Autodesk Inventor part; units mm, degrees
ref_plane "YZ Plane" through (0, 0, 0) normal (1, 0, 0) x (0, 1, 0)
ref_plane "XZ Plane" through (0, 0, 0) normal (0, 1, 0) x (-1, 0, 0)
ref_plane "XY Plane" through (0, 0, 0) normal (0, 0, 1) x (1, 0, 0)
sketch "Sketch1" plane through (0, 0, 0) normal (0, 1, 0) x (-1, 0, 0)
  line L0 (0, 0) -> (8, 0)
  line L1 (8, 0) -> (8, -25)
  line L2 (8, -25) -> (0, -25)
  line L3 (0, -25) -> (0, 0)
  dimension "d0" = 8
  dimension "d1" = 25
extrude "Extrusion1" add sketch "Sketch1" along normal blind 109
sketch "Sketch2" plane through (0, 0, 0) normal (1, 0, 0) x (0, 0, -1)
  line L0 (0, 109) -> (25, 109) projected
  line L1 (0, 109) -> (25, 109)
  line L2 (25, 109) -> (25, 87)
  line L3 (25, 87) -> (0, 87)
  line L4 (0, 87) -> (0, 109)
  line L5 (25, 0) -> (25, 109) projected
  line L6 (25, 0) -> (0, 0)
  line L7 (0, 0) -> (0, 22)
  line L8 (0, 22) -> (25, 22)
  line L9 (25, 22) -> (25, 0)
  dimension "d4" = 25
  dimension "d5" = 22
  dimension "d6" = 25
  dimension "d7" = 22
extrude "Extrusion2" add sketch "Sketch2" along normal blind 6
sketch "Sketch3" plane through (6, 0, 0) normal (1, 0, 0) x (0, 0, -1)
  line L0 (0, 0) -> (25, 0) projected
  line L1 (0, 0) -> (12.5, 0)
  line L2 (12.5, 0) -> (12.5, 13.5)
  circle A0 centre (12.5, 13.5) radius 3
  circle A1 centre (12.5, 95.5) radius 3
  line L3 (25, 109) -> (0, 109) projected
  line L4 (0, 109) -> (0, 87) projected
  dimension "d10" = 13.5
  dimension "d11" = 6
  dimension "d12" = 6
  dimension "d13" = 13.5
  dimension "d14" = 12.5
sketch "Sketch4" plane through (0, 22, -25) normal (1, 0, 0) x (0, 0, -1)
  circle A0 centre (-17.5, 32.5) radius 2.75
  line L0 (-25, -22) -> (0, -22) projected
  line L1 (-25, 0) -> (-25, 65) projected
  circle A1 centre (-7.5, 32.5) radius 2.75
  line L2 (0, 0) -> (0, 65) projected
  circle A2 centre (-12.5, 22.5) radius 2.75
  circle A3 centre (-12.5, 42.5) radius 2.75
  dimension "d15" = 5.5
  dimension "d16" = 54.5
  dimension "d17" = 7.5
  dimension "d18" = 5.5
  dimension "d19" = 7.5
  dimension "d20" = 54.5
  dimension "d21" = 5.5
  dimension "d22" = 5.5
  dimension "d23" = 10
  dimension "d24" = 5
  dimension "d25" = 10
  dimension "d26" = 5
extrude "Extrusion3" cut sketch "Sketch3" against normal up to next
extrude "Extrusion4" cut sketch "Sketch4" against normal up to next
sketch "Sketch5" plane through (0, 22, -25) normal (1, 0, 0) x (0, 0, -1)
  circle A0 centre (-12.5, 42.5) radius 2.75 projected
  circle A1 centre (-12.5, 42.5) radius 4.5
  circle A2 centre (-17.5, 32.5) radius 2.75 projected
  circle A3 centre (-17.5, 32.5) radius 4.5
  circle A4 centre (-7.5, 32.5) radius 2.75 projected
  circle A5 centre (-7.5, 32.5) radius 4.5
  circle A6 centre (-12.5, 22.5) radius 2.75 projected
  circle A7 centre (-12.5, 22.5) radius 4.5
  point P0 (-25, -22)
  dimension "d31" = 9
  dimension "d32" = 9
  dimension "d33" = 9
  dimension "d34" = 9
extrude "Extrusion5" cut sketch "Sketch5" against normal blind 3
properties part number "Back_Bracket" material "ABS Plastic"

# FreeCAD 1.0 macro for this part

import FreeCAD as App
import Part
import Sketcher
Q = App.Units.Quantity

doc = App.newDocument("Part")
params = doc.addObject("Spreadsheet::Sheet", "Params")
for row, (alias, value) in enumerate([
    ("sketch1_width", "8 mm"),
    ("sketch1_height", "25 mm"),
    ("pad1_length", "109 mm"),
    ("sketch2_width", "22 mm"),
    ("sketch2_height", "25 mm"),
    ("pad2_length", "6 mm"),
    ("sketch3_diameter", "6 mm"),
    ("pocket1_length", "14 mm"),
    ("sketch4_diameter", "5.5 mm"),
    ("sketch5_diameter", "9 mm"),
    ("sketch5_diameter2", "5.5 mm"),
    ("pocket3_length", "3 mm"),
], start=1):
    params.set(f"A{row}", alias)
    params.set(f"B{row}", "=" + value)
    params.setAlias(f"B{row}", alias)

body = doc.addObject("PartDesign::Body", "Body")

# Sketch on XZ plane
sketch1 = body.newObject("Sketcher::SketchObject", "Sketch")
sketch1.AttachmentSupport = (doc.getObject("XZ_Plane"), [""])
sketch1.MapMode = "FlatFace"
sketch1.addGeometry([
    Part.LineSegment(App.Vector(-8, 0, 0), App.Vector(0, 0, 0)),
    Part.LineSegment(App.Vector(0, 0, 0), App.Vector(0, -25, 0)),
    Part.LineSegment(App.Vector(0, -25, 0), App.Vector(-8, -25, 0)),
    Part.LineSegment(App.Vector(-8, -25, 0), App.Vector(-8, 0, 0)),
], False)
sketch1.addConstraint([
    Sketcher.Constraint("Coincident", 0, 2, 1, 1),
    Sketcher.Constraint("Coincident", 1, 2, 2, 1),
    Sketcher.Constraint("Coincident", 2, 2, 3, 1),
    Sketcher.Constraint("Coincident", 3, 2, 0, 1),
    Sketcher.Constraint("Horizontal", 0),
    Sketcher.Constraint("Vertical", 1),
    Sketcher.Constraint("Horizontal", 2),
    Sketcher.Constraint("Vertical", 3),
    Sketcher.Constraint("Coincident", 0, 2, -1, 1),
    Sketcher.Constraint("DistanceX", 0, 1, 0, 2, Q("8 mm")),
    Sketcher.Constraint("DistanceY", 1, 2, 1, 1, Q("25 mm")),
])
sketch1.setExpression("Constraints[9]", "Params.sketch1_width")
sketch1.setExpression("Constraints[10]", "Params.sketch1_height")
pad1 = body.newObject("PartDesign::Pad", "Pad")
pad1.Profile = sketch1
pad1.setExpression("Length", "Params.pad1_length")
pad1.Reversed = True

# Sketch on YZ plane
sketch2 = body.newObject("Sketcher::SketchObject", "Sketch001")
sketch2.AttachmentSupport = (doc.getObject("YZ_Plane"), [""])
sketch2.MapMode = "FlatFace"
sketch2.addGeometry([
    Part.LineSegment(App.Vector(0, -25, 0), App.Vector(22, -25, 0)),  # 0
    Part.LineSegment(App.Vector(22, -25, 0), App.Vector(22, 0, 0)),  # 1
    Part.LineSegment(App.Vector(22, 0, 0), App.Vector(0, 0, 0)),  # 2
    Part.LineSegment(App.Vector(0, 0, 0), App.Vector(0, -25, 0)),  # 3
    Part.LineSegment(App.Vector(109, -25, 0), App.Vector(109, 0, 0)),  # 4
    Part.LineSegment(App.Vector(109, 0, 0), App.Vector(87, 0, 0)),  # 5
    Part.LineSegment(App.Vector(87, 0, 0), App.Vector(87, -25, 0)),  # 6
    Part.LineSegment(App.Vector(87, -25, 0), App.Vector(109, -25, 0)),  # 7
], False)
sketch2.addConstraint([
    Sketcher.Constraint("Coincident", 0, 2, 1, 1),
    Sketcher.Constraint("Coincident", 1, 2, 2, 1),
    Sketcher.Constraint("Coincident", 2, 2, 3, 1),
    Sketcher.Constraint("Coincident", 3, 2, 0, 1),
    Sketcher.Constraint("Coincident", 4, 2, 5, 1),
    Sketcher.Constraint("Coincident", 5, 2, 6, 1),
    Sketcher.Constraint("Coincident", 6, 2, 7, 1),
    Sketcher.Constraint("Coincident", 7, 2, 4, 1),
    Sketcher.Constraint("Horizontal", 0),
    Sketcher.Constraint("Vertical", 1),
    Sketcher.Constraint("Horizontal", 2),
    Sketcher.Constraint("Vertical", 3),
    Sketcher.Constraint("Vertical", 4),
    Sketcher.Constraint("Horizontal", 5),
    Sketcher.Constraint("Vertical", 6),
    Sketcher.Constraint("Horizontal", 7),
    Sketcher.Constraint("Coincident", 2, 2, -1, 1),
    Sketcher.Constraint("PointOnObject", 4, 2, -1),
    Sketcher.Constraint("Horizontal", 3, 2, 6, 2),
    Sketcher.Constraint("Equal", 2, 5),
    Sketcher.Constraint("DistanceX", 0, 1, 0, 2, Q("22 mm")),
    Sketcher.Constraint("DistanceY", 1, 1, 1, 2, Q("25 mm")),
    Sketcher.Constraint("DistanceX", -1, 1, 4, 2, Q("109 mm")),
])
sketch2.setExpression("Constraints[20]", "Params.sketch2_width")
sketch2.setExpression("Constraints[21]", "Params.sketch2_height")
pad2 = body.newObject("PartDesign::Pad", "Pad001")
pad2.Profile = sketch2
pad2.setExpression("Length", "Params.pad2_length")

# Sketch on YZ plane
sketch3 = body.newObject("Sketcher::SketchObject", "Sketch002")
sketch3.AttachmentSupport = (doc.getObject("YZ_Plane"), [""])
sketch3.MapMode = "FlatFace"
sketch3.AttachmentOffset = App.Placement(App.Vector(0, 0, 6), App.Rotation())
sketch3.addGeometry([
    Part.Circle(App.Vector(13.5, -12.5, 0), App.Vector(0, 0, 1), 3),
    Part.Circle(App.Vector(95.5, -12.5, 0), App.Vector(0, 0, 1), 3),
], False)
sketch3.addConstraint([
    Sketcher.Constraint("Equal", 0, 1),
    Sketcher.Constraint("Horizontal", 0, 3, 1, 3),
    Sketcher.Constraint("Diameter", 0, Q("6 mm")),
    Sketcher.Constraint("DistanceX", -1, 1, 0, 3, Q("13.5 mm")),
    Sketcher.Constraint("DistanceY", 0, 3, -1, 1, Q("12.5 mm")),
    Sketcher.Constraint("DistanceX", 0, 3, 1, 3, Q("82 mm")),
])
sketch3.setExpression("Constraints[2]", "Params.sketch3_diameter")
pocket1 = body.newObject("PartDesign::Pocket", "Pocket")
pocket1.Profile = sketch3
pocket1.setExpression("Length", "Params.pocket1_length")

# Sketch on YZ plane
sketch4 = body.newObject("Sketcher::SketchObject", "Sketch003")
sketch4.AttachmentSupport = (doc.getObject("YZ_Plane"), [""])
sketch4.MapMode = "FlatFace"
sketch4.addGeometry([
    Part.Circle(App.Vector(54.5, -7.5, 0), App.Vector(0, 0, 1), 2.8),
    Part.Circle(App.Vector(54.5, -17.5, 0), App.Vector(0, 0, 1), 2.8),
    Part.Circle(App.Vector(44.5, -12.5, 0), App.Vector(0, 0, 1), 2.8),
    Part.Circle(App.Vector(64.5, -12.5, 0), App.Vector(0, 0, 1), 2.8),
], False)
sketch4.addConstraint([
    Sketcher.Constraint("Equal", 0, 1),
    Sketcher.Constraint("Equal", 1, 2),
    Sketcher.Constraint("Equal", 2, 3),
    Sketcher.Constraint("Horizontal", 2, 3, 3, 3),
    Sketcher.Constraint("Vertical", 0, 3, 1, 3),
    Sketcher.Constraint("Diameter", 0, Q("5.5 mm")),
    Sketcher.Constraint("DistanceY", 1, 3, 0, 3, Q("10 mm")),
    Sketcher.Constraint("DistanceX", 2, 3, 0, 3, Q("10 mm")),
    Sketcher.Constraint("DistanceY", 2, 3, 0, 3, Q("5 mm")),
    Sketcher.Constraint("DistanceX", 0, 3, 3, 3, Q("10 mm")),
    Sketcher.Constraint("DistanceX", -1, 1, 0, 3, Q("54.5 mm")),
    Sketcher.Constraint("DistanceY", 0, 3, -1, 1, Q("7.5 mm")),
])
sketch4.setExpression("Constraints[5]", "Params.sketch4_diameter")
pocket2 = body.newObject("PartDesign::Pocket", "Pocket001")
pocket2.Profile = sketch4
pocket2.Type = "UpToFirst"

# Sketch on YZ plane
sketch5 = body.newObject("Sketcher::SketchObject", "Sketch004")
sketch5.AttachmentSupport = (doc.getObject("YZ_Plane"), [""])
sketch5.MapMode = "FlatFace"
sketch5.addGeometry([
    Part.Circle(App.Vector(64.5, -12.5, 0), App.Vector(0, 0, 1), 4.5),  # 0
    Part.Circle(App.Vector(64.5, -12.5, 0), App.Vector(0, 0, 1), 2.8),  # 1
    Part.Circle(App.Vector(54.5, -7.5, 0), App.Vector(0, 0, 1), 4.5),  # 2
    Part.Circle(App.Vector(54.5, -7.5, 0), App.Vector(0, 0, 1), 2.8),  # 3
    Part.Circle(App.Vector(54.5, -17.5, 0), App.Vector(0, 0, 1), 4.5),  # 4
    Part.Circle(App.Vector(54.5, -17.5, 0), App.Vector(0, 0, 1), 2.8),  # 5
    Part.Circle(App.Vector(44.5, -12.5, 0), App.Vector(0, 0, 1), 4.5),  # 6
    Part.Circle(App.Vector(44.5, -12.5, 0), App.Vector(0, 0, 1), 2.8),  # 7
], False)
sketch5.addConstraint([
    Sketcher.Constraint("Coincident", 1, 3, 0, 3),
    Sketcher.Constraint("Coincident", 3, 3, 2, 3),
    Sketcher.Constraint("Coincident", 5, 3, 4, 3),
    Sketcher.Constraint("Coincident", 7, 3, 6, 3),
    Sketcher.Constraint("Equal", 0, 2),
    Sketcher.Constraint("Equal", 1, 3),
    Sketcher.Constraint("Equal", 2, 4),
    Sketcher.Constraint("Equal", 3, 5),
    Sketcher.Constraint("Equal", 4, 6),
    Sketcher.Constraint("Equal", 5, 7),
    Sketcher.Constraint("Horizontal", 1, 3, 6, 3),
    Sketcher.Constraint("Vertical", 3, 3, 4, 3),
    Sketcher.Constraint("Diameter", 0, Q("9 mm")),
    Sketcher.Constraint("Diameter", 1, Q("5.5 mm")),
    Sketcher.Constraint("DistanceX", 2, 3, 0, 3, Q("10 mm")),
    Sketcher.Constraint("DistanceY", 0, 3, 2, 3, Q("5 mm")),
    Sketcher.Constraint("DistanceY", 4, 3, 2, 3, Q("10 mm")),
    Sketcher.Constraint("DistanceX", 6, 3, 2, 3, Q("10 mm")),
    Sketcher.Constraint("DistanceX", -1, 1, 0, 3, Q("64.5 mm")),
    Sketcher.Constraint("DistanceY", 0, 3, -1, 1, Q("12.5 mm")),
])
sketch5.setExpression("Constraints[12]", "Params.sketch5_diameter")
sketch5.setExpression("Constraints[13]", "Params.sketch5_diameter2")
pocket3 = body.newObject("PartDesign::Pocket", "Pocket002")
pocket3.Profile = sketch5
pocket3.setExpression("Length", "Params.pocket3_length")

doc.recompute()
